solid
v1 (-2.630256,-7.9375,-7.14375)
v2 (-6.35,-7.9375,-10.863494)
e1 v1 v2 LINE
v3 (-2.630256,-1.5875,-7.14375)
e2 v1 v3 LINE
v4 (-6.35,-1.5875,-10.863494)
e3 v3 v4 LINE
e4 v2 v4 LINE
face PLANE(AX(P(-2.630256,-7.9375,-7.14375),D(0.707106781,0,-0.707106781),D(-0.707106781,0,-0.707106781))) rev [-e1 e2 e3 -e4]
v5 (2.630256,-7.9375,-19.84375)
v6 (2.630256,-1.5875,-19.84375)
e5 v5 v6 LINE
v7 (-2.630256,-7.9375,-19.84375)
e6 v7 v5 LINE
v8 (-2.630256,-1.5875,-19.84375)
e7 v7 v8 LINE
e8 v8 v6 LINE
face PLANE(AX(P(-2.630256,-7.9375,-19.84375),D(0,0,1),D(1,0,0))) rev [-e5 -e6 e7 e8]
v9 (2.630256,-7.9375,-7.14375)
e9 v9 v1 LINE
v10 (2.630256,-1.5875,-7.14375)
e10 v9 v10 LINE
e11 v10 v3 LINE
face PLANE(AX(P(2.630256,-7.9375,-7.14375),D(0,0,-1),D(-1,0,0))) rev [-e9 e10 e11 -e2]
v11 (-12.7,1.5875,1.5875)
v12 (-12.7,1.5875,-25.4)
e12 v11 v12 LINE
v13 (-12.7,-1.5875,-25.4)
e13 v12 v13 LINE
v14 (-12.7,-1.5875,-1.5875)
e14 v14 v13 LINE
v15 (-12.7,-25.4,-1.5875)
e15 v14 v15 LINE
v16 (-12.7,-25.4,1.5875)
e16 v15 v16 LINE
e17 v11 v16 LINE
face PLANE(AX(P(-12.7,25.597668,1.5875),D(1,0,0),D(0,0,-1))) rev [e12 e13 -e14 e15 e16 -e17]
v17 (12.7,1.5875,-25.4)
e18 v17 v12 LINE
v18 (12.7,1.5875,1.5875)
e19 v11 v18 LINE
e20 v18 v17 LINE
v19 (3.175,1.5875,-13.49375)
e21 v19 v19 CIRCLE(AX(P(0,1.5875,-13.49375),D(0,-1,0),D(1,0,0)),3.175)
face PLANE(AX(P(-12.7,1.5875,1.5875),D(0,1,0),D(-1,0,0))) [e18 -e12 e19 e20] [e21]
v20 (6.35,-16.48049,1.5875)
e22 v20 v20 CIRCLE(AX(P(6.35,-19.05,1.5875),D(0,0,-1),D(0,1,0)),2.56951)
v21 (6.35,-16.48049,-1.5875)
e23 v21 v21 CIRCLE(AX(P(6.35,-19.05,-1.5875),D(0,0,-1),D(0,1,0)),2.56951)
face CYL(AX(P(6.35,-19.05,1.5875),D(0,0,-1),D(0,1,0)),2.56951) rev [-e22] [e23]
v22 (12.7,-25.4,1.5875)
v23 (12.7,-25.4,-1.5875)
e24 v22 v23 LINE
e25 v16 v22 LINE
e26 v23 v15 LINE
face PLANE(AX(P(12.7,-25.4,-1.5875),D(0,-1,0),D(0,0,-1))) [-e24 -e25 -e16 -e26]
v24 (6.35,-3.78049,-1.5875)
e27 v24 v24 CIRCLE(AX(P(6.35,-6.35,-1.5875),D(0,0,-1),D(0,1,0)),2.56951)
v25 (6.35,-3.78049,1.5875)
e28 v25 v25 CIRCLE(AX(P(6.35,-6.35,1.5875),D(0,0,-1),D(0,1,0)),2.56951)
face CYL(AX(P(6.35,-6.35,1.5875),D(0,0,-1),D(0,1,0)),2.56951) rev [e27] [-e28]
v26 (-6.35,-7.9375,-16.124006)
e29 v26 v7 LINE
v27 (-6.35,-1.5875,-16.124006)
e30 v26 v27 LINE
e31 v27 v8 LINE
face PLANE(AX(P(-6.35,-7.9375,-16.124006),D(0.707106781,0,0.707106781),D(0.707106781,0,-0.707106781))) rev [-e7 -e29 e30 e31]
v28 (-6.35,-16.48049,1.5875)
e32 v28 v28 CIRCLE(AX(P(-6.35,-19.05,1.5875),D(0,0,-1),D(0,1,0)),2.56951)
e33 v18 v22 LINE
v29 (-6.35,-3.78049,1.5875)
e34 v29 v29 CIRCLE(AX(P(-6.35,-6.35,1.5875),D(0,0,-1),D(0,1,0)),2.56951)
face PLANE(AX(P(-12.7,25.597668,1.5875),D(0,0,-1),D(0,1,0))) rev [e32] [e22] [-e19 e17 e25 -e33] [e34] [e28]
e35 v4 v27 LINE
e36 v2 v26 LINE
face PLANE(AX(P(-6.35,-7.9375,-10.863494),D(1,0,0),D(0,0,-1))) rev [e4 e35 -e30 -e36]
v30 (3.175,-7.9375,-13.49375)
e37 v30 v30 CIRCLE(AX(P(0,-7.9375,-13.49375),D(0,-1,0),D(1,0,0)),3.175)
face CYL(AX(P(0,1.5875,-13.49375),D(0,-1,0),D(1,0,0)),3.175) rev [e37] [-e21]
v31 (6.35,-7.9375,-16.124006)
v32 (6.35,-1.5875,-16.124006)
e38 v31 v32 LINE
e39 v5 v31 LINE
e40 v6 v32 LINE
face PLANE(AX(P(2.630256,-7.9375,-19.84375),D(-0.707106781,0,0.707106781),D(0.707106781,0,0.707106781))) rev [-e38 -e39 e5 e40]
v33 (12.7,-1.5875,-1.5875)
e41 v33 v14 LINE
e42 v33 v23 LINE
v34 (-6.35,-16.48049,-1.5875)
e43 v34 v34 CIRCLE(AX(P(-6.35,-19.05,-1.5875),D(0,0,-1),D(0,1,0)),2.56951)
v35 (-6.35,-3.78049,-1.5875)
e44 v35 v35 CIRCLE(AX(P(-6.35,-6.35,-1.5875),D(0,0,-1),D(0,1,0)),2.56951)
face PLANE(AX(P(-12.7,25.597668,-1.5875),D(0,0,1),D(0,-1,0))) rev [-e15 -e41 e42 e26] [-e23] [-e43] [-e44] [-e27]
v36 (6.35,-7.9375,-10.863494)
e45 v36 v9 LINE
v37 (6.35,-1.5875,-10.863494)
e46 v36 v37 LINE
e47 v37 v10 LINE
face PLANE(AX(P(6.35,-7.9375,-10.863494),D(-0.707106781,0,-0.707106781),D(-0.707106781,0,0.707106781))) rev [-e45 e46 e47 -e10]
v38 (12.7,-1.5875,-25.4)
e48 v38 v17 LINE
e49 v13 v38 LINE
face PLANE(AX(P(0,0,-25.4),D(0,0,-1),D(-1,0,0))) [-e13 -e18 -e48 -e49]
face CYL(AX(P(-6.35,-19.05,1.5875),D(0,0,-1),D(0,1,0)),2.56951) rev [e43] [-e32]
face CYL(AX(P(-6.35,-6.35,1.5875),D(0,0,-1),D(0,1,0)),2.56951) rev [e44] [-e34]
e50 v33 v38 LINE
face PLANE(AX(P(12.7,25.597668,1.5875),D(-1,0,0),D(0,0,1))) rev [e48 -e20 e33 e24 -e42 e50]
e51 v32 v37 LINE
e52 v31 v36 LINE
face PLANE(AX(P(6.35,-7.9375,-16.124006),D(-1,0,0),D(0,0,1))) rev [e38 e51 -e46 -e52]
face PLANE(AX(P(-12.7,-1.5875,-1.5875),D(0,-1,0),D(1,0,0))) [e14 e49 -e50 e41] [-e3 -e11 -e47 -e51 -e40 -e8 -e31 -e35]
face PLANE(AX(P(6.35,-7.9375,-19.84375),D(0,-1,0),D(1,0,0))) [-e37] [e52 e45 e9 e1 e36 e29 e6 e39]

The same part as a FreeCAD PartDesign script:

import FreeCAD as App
import Part
import Sketcher

V = App.Vector
Q = App.Units.Quantity


def add_polygon(sketch, points):
    """Adds a closed chain of lines whose ends are joined by coincident constraints."""
    first, n = sketch.GeometryCount, len(points)
    for a, b in zip(points, points[1:] + points[:1]):
        sketch.addGeometry(Part.LineSegment(App.Vector(*a, 0), App.Vector(*b, 0)), False)
    for i in range(n):
        sketch.addConstraint(Sketcher.Constraint("Coincident", first + i, 2, first + (i + 1) % n, 1))

doc = App.newDocument("Part")
params = doc.addObject("Spreadsheet::Sheet", "Params")
for row, (alias, value) in enumerate([
    ("sketch1_width", "1 in"),
    ("sketch1_height", "0.125 in"),
    ("sketch2_width", "1 in"),
    ("pad1_length", "0.25 in"),
    ("sketch4_diameter", "0.25 in"),
], start=1):
    params.set(f"A{row}", alias)
    params.set(f"B{row}", "=" + value)
    params.setAlias(f"B{row}", alias)

body = doc.addObject("PartDesign::Body", "Body")

# Sketch on XZ plane
sketch1 = doc.addObject("Sketcher::SketchObject", "Sketch")
body.addObject(sketch1)
sketch1.AttachmentSupport = (doc.XZ_Plane, [""])
sketch1.MapMode = "FlatFace"
sketch1.AttachmentOffset = App.Placement(V(0, 0, 1 * 25.4), App.Rotation())
add_polygon(sketch1, [(12.7, 1.5875), (12.7, -1.5875), (-12.7, -1.5875), (-12.7, 1.5875)])  # lines 0-3
sketch1.addConstraint([
    Sketcher.Constraint("Vertical", 0),
    Sketcher.Constraint("Horizontal", 1),
    Sketcher.Constraint("Vertical", 2),
    Sketcher.Constraint("Horizontal", 3),
    Sketcher.Constraint("Symmetric", 0, 2, 2, 2, -1, 1),
    Sketcher.Constraint("DistanceX", 1, 2, 1, 1, Q("1 in")),
    Sketcher.Constraint("DistanceY", 0, 2, 0, 1, Q("0.125 in")),
])
sketch1.setExpression("Constraints[9]", "Params.sketch1_width")
sketch1.setExpression("Constraints[10]", "Params.sketch1_height")

# Sketch on YZ plane
sketch2 = doc.addObject("Sketcher::SketchObject", "Sketch001")
body.addObject(sketch2)
sketch2.AttachmentSupport = (doc.YZ_Plane, [""])
sketch2.MapMode = "FlatFace"
sketch2.addGeometry([
    Part.LineSegment(V(0, -25.4, 0), V(0, 0, 0)),
    Part.LineSegment(V(0, 0, 0), V(-25.4, 0, 0)),
], False)
sketch2.addConstraint([
    Sketcher.Constraint("Coincident", 0, 2, 1, 1),
    Sketcher.Constraint("Vertical", 0),
    Sketcher.Constraint("Horizontal", 1),
    Sketcher.Constraint("Coincident", 0, 2, -1, 1),
    Sketcher.Constraint("Equal", 1, 0),
    Sketcher.Constraint("DistanceX", 1, 2, 1, 1, Q("1 in")),
])
sketch2.setExpression("Constraints[5]", "Params.sketch2_width")
doc.recompute()

additivepipe = doc.addObject("PartDesign::AdditivePipe", "AdditivePipe")
body.addObject(additivepipe)
additivepipe.Profile = sketch1
additivepipe.Spine = (sketch2, ["Edge1", "Edge2"])
additivepipe.Transition = "Right corner"

# Sketch on XZ plane
sketch3 = doc.addObject("Sketcher::SketchObject", "Sketch002")
body.addObject(sketch3)
sketch3.AttachmentSupport = (doc.XZ_Plane, [""])
sketch3.MapMode = "FlatFace"
sketch3.AttachmentOffset = App.Placement(V(0, 0, 0.0625 * 25.4), App.Rotation())
add_polygon(sketch3, [(2.630256, -19.84375), (6.35, -16.124006), (6.35, -10.863494), (2.630256, -7.14375), (-2.630256, -7.14375), (-6.35, -10.863494), (-6.35, -16.124006), (-2.630256, -19.84375)])  # lines 0-7
sketch3.addConstraint([
    Sketcher.Constraint("Vertical", 1),
    Sketcher.Constraint("Horizontal", 3),
    Sketcher.Constraint("Vertical", 5),
    Sketcher.Constraint("Horizontal", 7),
    Sketcher.Constraint("Symmetric", 1, 2, 4, 2, -2),
    Sketcher.Constraint("Perpendicular", 0, 2),
    Sketcher.Constraint("Perpendicular", 2, 4),
    Sketcher.Constraint("Perpendicular", 4, 6),
    Sketcher.Constraint("Horizontal", 0, 2, 5, 2),
    Sketcher.Constraint("Vertical", 3, 2, 6, 2),
    Sketcher.Constraint("Vertical", 2, 2, 7, 2),
    Sketcher.Constraint("Equal", 7, 1),
    Sketcher.Constraint("DistanceX", 4, 2, 1, 2, Q("0.5 in")),
    Sketcher.Constraint("DistanceY", 2, 2, -1, 1, Q("0.28125 in")),
    Sketcher.Constraint("DistanceX", 3, 2, 3, 1, 5.260512),
])
pad1 = doc.addObject("PartDesign::Pad", "Pad")
body.addObject(pad1)
pad1.Profile = sketch3
pad1.setExpression("Length", "Params.pad1_length")

# Sketch on XZ plane
sketch4 = doc.addObject("Sketcher::SketchObject", "Sketch003")
body.addObject(sketch4)
sketch4.AttachmentSupport = (doc.XZ_Plane, [""])
sketch4.MapMode = "FlatFace"
sketch4.AttachmentOffset = App.Placement(V(0, 0, 0.3125 * 25.4), App.Rotation())
sketch4.addGeometry(Part.Circle(V(0, -13.49375, 0), V(0, 0, 1), 3.175), False)
sketch4.addConstraint([
    Sketcher.Constraint("PointOnObject", 0, 3, -2),
    Sketcher.Constraint("Diameter", 0, Q("0.25 in")),
    Sketcher.Constraint("DistanceY", 0, 3, -1, 1, Q("0.53125 in")),
])
sketch4.setExpression("Constraints[1]", "Params.sketch4_diameter")
pocket1 = doc.addObject("PartDesign::Pocket", "Pocket")
body.addObject(pocket1)
pocket1.Profile = sketch4
pocket1.Type = "ThroughAll"

# Sketch on XY plane
sketch5 = doc.addObject("Sketcher::SketchObject", "Sketch004")
body.addObject(sketch5)
sketch5.AttachmentSupport = (doc.XY_Plane, [""])
sketch5.MapMode = "FlatFace"
sketch5.AttachmentOffset = App.Placement(V(0, 0, -0.0625 * 25.4), App.Rotation())
sketch5.addGeometry([
    Part.Circle(V(6.35, -19.05, 0), V(0, 0, 1), 2.56951),
    Part.Circle(V(6.35, -6.35, 0), V(0, 0, 1), 2.56951),
    Part.Circle(V(-6.35, -19.05, 0), V(0, 0, 1), 2.56951),
    Part.Circle(V(-6.35, -6.35, 0), V(0, 0, 1), 2.56951),
], False)
sketch5.addConstraint([
    Sketcher.Constraint("Equal", 0, 1),
    Sketcher.Constraint("Equal", 1, 2),
    Sketcher.Constraint("Equal", 2, 3),
    Sketcher.Constraint("Symmetric", 0, 3, 2, 3, -2),
    Sketcher.Constraint("Symmetric", 1, 3, 3, 3, -2),
    Sketcher.Constraint("Vertical", 0, 3, 1, 3),
    Sketcher.Constraint("DistanceY", 0, 3, 1, 3, Q("0.5 in")),
    Sketcher.Constraint("DistanceX", 2, 3, 0, 3, Q("0.5 in")),
    Sketcher.Constraint("DistanceY", 0, 3, -1, 1, Q("0.75 in")),
    Sketcher.Constraint("Diameter", 0, 5.13902),
])
pocket2 = doc.addObject("PartDesign::Pocket", "Pocket001")
body.addObject(pocket2)
pocket2.Profile = sketch5
pocket2.Type = "ThroughAll"
pocket2.Reversed = True

doc.recompute()
